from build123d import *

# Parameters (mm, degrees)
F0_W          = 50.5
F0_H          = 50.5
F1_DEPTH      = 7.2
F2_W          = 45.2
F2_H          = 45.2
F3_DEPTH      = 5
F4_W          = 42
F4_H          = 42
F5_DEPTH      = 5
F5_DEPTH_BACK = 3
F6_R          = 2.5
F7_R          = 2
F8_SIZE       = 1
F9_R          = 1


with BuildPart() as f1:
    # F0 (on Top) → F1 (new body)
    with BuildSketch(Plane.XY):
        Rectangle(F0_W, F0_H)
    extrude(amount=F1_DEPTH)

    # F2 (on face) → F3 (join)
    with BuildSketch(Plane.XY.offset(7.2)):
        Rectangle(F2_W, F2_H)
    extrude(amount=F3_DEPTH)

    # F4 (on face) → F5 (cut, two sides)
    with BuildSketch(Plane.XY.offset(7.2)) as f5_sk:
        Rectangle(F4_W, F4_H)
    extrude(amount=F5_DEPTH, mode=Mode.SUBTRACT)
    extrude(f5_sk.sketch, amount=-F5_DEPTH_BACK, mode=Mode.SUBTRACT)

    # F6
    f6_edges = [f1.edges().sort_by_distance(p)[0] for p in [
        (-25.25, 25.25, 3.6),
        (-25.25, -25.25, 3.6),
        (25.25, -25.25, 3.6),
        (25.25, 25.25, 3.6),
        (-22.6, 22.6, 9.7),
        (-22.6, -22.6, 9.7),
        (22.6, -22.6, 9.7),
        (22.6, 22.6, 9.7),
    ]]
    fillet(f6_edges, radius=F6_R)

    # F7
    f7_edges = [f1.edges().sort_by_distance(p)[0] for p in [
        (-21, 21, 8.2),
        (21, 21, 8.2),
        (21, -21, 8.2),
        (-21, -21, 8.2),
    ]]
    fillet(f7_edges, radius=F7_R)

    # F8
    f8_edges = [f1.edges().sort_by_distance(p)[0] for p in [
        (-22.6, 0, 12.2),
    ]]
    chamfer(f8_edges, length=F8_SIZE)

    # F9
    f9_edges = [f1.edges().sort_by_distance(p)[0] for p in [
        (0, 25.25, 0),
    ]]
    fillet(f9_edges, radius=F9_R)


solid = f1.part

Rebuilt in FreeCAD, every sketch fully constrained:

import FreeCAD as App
import Part
import Sketcher
from FreeCAD import Vector
Q = App.Units.Quantity


def edges_at(feature, points):
    """Names of the edges that pass closest to the given points."""
    edges = feature.Shape.Edges
    near = lambda p: min(range(len(edges)), key=lambda i: edges[i].distToShape(Part.Vertex(*p))[0])
    return sorted({f"Edge{near(p) + 1}" for p in points})

doc = App.newDocument("Part")
params = doc.addObject("Spreadsheet::Sheet", "Params")
for row, (alias, value) in enumerate([
    ("sketch1_width", "50.5 mm"),
    ("pad1_length", "7.2 mm"),
    ("sketch2_width", "45.2 mm"),
    ("pad2_length", "5 mm"),
    ("sketch3_width", "42 mm"),
    ("pocket1_length", "5 mm"),
    ("pocket1_length2", "3 mm"),
    ("fillet_radius", "2.5 mm"),
    ("fillet2_radius", "2 mm"),
    ("chamfer_size", "1 mm"),
    ("fillet3_radius", "1 mm"),
], start=1):
    params.set(f"A{row}", alias)
    params.set(f"B{row}", "=" + value)
    params.setAlias(f"B{row}", alias)

body = doc.addObject("PartDesign::Body", "Body")

sketch1 = body.newObject("Sketcher::SketchObject", "Sketch")
sketch1.AttachmentSupport = (doc.getObject("XY_Plane"), [""])
sketch1.MapMode = "FlatFace"
sketch1.addGeometry(Part.LineSegment(Vector(-25, 25, 0), Vector(-25, -25, 0)), False)
sketch1.addGeometry(Part.LineSegment(Vector(-25, -25, 0), Vector(25, -25, 0)), False)
sketch1.addGeometry(Part.LineSegment(Vector(25, -25, 0), Vector(25, 25, 0)), False)
sketch1.addGeometry(Part.LineSegment(Vector(25, 25, 0), Vector(-25, 25, 0)), False)
sketch1.addConstraint(Sketcher.Constraint("Coincident", 0, 2, 1, 1))
sketch1.addConstraint(Sketcher.Constraint("Coincident", 1, 2, 2, 1))
sketch1.addConstraint(Sketcher.Constraint("Coincident", 2, 2, 3, 1))
sketch1.addConstraint(Sketcher.Constraint("Coincident", 3, 2, 0, 1))
sketch1.addConstraint(Sketcher.Constraint("Vertical", 0))
sketch1.addConstraint(Sketcher.Constraint("Horizontal", 1))
sketch1.addConstraint(Sketcher.Constraint("Vertical", 2))
sketch1.addConstraint(Sketcher.Constraint("Horizontal", 3))
sketch1.addConstraint(Sketcher.Constraint("Symmetric", 0, 2, 2, 2, -1, 1))
sketch1.addConstraint(Sketcher.Constraint("Equal", 3, 0))
sketch1.addConstraint(Sketcher.Constraint("DistanceX", 1, 1, 1, 2, Q("50.5 mm")))
sketch1.setExpression("Constraints[10]", "Params.sketch1_width")
pad1 = body.newObject("PartDesign::Pad", "Pad")
pad1.Profile = sketch1
pad1.setExpression("Length", "Params.pad1_length")

sketch2 = body.newObject("Sketcher::SketchObject", "Sketch001")
sketch2.AttachmentSupport = (doc.getObject("XY_Plane"), [""])
sketch2.MapMode = "FlatFace"
sketch2.AttachmentOffset = App.Placement(Vector(0, 0, 7.2), App.Rotation())
sketch2.addGeometry(Part.LineSegment(Vector(-23, 23, 0), Vector(-23, -23, 0)), False)
sketch2.addGeometry(Part.LineSegment(Vector(-23, -23, 0), Vector(23, -23, 0)), False)
sketch2.addGeometry(Part.LineSegment(Vector(23, -23, 0), Vector(23, 23, 0)), False)
sketch2.addGeometry(Part.LineSegment(Vector(23, 23, 0), Vector(-23, 23, 0)), False)
sketch2.addConstraint(Sketcher.Constraint("Coincident", 0, 2, 1, 1))
sketch2.addConstraint(Sketcher.Constraint("Coincident", 1, 2, 2, 1))
sketch2.addConstraint(Sketcher.Constraint("Coincident", 2, 2, 3, 1))
sketch2.addConstraint(Sketcher.Constraint("Coincident", 3, 2, 0, 1))
sketch2.addConstraint(Sketcher.Constraint("Vertical", 0))
sketch2.addConstraint(Sketcher.Constraint("Horizontal", 1))
sketch2.addConstraint(Sketcher.Constraint("Vertical", 2))
sketch2.addConstraint(Sketcher.Constraint("Horizontal", 3))
sketch2.addConstraint(Sketcher.Constraint("Symmetric", 0, 2, 2, 2, -1, 1))
sketch2.addConstraint(Sketcher.Constraint("Equal", 3, 0))
sketch2.addConstraint(Sketcher.Constraint("DistanceX", 1, 1, 1, 2, Q("45.2 mm")))
sketch2.setExpression("Constraints[10]", "Params.sketch2_width")
pad2 = body.newObject("PartDesign::Pad", "Pad001")
pad2.Profile = sketch2
pad2.setExpression("Length", "Params.pad2_length")

sketch3 = body.newObject("Sketcher::SketchObject", "Sketch002")
sketch3.AttachmentSupport = (doc.getObject("XY_Plane"), [""])
sketch3.MapMode = "FlatFace"
sketch3.AttachmentOffset = App.Placement(Vector(0, 0, 7.2), App.Rotation())
sketch3.addGeometry(Part.LineSegment(Vector(-21, 21, 0), Vector(-21, -21, 0)), False)
sketch3.addGeometry(Part.LineSegment(Vector(-21, -21, 0), Vector(21, -21, 0)), False)
sketch3.addGeometry(Part.LineSegment(Vector(21, -21, 0), Vector(21, 21, 0)), False)
sketch3.addGeometry(Part.LineSegment(Vector(21, 21, 0), Vector(-21, 21, 0)), False)
sketch3.addConstraint(Sketcher.Constraint("Coincident", 0, 2, 1, 1))
sketch3.addConstraint(Sketcher.Constraint("Coincident", 1, 2, 2, 1))
sketch3.addConstraint(Sketcher.Constraint("Coincident", 2, 2, 3, 1))
sketch3.addConstraint(Sketcher.Constraint("Coincident", 3, 2, 0, 1))
sketch3.addConstraint(Sketcher.Constraint("Vertical", 0))
sketch3.addConstraint(Sketcher.Constraint("Horizontal", 1))
sketch3.addConstraint(Sketcher.Constraint("Vertical", 2))
sketch3.addConstraint(Sketcher.Constraint("Horizontal", 3))
sketch3.addConstraint(Sketcher.Constraint("Symmetric", 0, 2, 2, 2, -1, 1))
sketch3.addConstraint(Sketcher.Constraint("Equal", 3, 0))
sketch3.addConstraint(Sketcher.Constraint("DistanceX", 1, 1, 1, 2, Q("42 mm")))
sketch3.setExpression("Constraints[10]", "Params.sketch3_width")
pocket1 = body.newObject("PartDesign::Pocket", "Pocket")
pocket1.Profile = sketch3
pocket1.Type = "TwoLengths"
pocket1.setExpression("Length", "Params.pocket1_length")
pocket1.setExpression("Length2", "Params.pocket1_length2")
pocket1.Reversed = True
doc.recompute()

fillet = body.newObject("PartDesign::Fillet", "Fillet")
fillet.Base = (pocket1, edges_at(pocket1, [
    (-25.25, 25.25, 3.6),
    (-25.25, -25.25, 3.6),
    (25.25, -25.25, 3.6),
    (25.25, 25.25, 3.6),
    (-22.6, 22.6, 9.7),
    (-22.6, -22.6, 9.7),
    (22.6, -22.6, 9.7),
    (22.6, 22.6, 9.7),
]))
fillet.setExpression("Radius", "Params.fillet_radius")
doc.recompute()

fillet2 = body.newObject("PartDesign::Fillet", "Fillet001")
fillet2.Base = (fillet, edges_at(fillet, [
    (-21, 21, 8.2),
    (21, 21, 8.2),
    (21, -21, 8.2),
    (-21, -21, 8.2),
]))
fillet2.setExpression("Radius", "Params.fillet2_radius")
doc.recompute()

chamfer = body.newObject("PartDesign::Chamfer", "Chamfer")
chamfer.Base = (fillet2, edges_at(fillet2, [(-22.6, 0, 12.2)]))
chamfer.setExpression("Size", "Params.chamfer_size")
doc.recompute()

fillet3 = body.newObject("PartDesign::Fillet", "Fillet002")
fillet3.Base = (chamfer, edges_at(chamfer, [(0, 25.25, 0)]))
fillet3.setExpression("Radius", "Params.fillet3_radius")

doc.recompute()
